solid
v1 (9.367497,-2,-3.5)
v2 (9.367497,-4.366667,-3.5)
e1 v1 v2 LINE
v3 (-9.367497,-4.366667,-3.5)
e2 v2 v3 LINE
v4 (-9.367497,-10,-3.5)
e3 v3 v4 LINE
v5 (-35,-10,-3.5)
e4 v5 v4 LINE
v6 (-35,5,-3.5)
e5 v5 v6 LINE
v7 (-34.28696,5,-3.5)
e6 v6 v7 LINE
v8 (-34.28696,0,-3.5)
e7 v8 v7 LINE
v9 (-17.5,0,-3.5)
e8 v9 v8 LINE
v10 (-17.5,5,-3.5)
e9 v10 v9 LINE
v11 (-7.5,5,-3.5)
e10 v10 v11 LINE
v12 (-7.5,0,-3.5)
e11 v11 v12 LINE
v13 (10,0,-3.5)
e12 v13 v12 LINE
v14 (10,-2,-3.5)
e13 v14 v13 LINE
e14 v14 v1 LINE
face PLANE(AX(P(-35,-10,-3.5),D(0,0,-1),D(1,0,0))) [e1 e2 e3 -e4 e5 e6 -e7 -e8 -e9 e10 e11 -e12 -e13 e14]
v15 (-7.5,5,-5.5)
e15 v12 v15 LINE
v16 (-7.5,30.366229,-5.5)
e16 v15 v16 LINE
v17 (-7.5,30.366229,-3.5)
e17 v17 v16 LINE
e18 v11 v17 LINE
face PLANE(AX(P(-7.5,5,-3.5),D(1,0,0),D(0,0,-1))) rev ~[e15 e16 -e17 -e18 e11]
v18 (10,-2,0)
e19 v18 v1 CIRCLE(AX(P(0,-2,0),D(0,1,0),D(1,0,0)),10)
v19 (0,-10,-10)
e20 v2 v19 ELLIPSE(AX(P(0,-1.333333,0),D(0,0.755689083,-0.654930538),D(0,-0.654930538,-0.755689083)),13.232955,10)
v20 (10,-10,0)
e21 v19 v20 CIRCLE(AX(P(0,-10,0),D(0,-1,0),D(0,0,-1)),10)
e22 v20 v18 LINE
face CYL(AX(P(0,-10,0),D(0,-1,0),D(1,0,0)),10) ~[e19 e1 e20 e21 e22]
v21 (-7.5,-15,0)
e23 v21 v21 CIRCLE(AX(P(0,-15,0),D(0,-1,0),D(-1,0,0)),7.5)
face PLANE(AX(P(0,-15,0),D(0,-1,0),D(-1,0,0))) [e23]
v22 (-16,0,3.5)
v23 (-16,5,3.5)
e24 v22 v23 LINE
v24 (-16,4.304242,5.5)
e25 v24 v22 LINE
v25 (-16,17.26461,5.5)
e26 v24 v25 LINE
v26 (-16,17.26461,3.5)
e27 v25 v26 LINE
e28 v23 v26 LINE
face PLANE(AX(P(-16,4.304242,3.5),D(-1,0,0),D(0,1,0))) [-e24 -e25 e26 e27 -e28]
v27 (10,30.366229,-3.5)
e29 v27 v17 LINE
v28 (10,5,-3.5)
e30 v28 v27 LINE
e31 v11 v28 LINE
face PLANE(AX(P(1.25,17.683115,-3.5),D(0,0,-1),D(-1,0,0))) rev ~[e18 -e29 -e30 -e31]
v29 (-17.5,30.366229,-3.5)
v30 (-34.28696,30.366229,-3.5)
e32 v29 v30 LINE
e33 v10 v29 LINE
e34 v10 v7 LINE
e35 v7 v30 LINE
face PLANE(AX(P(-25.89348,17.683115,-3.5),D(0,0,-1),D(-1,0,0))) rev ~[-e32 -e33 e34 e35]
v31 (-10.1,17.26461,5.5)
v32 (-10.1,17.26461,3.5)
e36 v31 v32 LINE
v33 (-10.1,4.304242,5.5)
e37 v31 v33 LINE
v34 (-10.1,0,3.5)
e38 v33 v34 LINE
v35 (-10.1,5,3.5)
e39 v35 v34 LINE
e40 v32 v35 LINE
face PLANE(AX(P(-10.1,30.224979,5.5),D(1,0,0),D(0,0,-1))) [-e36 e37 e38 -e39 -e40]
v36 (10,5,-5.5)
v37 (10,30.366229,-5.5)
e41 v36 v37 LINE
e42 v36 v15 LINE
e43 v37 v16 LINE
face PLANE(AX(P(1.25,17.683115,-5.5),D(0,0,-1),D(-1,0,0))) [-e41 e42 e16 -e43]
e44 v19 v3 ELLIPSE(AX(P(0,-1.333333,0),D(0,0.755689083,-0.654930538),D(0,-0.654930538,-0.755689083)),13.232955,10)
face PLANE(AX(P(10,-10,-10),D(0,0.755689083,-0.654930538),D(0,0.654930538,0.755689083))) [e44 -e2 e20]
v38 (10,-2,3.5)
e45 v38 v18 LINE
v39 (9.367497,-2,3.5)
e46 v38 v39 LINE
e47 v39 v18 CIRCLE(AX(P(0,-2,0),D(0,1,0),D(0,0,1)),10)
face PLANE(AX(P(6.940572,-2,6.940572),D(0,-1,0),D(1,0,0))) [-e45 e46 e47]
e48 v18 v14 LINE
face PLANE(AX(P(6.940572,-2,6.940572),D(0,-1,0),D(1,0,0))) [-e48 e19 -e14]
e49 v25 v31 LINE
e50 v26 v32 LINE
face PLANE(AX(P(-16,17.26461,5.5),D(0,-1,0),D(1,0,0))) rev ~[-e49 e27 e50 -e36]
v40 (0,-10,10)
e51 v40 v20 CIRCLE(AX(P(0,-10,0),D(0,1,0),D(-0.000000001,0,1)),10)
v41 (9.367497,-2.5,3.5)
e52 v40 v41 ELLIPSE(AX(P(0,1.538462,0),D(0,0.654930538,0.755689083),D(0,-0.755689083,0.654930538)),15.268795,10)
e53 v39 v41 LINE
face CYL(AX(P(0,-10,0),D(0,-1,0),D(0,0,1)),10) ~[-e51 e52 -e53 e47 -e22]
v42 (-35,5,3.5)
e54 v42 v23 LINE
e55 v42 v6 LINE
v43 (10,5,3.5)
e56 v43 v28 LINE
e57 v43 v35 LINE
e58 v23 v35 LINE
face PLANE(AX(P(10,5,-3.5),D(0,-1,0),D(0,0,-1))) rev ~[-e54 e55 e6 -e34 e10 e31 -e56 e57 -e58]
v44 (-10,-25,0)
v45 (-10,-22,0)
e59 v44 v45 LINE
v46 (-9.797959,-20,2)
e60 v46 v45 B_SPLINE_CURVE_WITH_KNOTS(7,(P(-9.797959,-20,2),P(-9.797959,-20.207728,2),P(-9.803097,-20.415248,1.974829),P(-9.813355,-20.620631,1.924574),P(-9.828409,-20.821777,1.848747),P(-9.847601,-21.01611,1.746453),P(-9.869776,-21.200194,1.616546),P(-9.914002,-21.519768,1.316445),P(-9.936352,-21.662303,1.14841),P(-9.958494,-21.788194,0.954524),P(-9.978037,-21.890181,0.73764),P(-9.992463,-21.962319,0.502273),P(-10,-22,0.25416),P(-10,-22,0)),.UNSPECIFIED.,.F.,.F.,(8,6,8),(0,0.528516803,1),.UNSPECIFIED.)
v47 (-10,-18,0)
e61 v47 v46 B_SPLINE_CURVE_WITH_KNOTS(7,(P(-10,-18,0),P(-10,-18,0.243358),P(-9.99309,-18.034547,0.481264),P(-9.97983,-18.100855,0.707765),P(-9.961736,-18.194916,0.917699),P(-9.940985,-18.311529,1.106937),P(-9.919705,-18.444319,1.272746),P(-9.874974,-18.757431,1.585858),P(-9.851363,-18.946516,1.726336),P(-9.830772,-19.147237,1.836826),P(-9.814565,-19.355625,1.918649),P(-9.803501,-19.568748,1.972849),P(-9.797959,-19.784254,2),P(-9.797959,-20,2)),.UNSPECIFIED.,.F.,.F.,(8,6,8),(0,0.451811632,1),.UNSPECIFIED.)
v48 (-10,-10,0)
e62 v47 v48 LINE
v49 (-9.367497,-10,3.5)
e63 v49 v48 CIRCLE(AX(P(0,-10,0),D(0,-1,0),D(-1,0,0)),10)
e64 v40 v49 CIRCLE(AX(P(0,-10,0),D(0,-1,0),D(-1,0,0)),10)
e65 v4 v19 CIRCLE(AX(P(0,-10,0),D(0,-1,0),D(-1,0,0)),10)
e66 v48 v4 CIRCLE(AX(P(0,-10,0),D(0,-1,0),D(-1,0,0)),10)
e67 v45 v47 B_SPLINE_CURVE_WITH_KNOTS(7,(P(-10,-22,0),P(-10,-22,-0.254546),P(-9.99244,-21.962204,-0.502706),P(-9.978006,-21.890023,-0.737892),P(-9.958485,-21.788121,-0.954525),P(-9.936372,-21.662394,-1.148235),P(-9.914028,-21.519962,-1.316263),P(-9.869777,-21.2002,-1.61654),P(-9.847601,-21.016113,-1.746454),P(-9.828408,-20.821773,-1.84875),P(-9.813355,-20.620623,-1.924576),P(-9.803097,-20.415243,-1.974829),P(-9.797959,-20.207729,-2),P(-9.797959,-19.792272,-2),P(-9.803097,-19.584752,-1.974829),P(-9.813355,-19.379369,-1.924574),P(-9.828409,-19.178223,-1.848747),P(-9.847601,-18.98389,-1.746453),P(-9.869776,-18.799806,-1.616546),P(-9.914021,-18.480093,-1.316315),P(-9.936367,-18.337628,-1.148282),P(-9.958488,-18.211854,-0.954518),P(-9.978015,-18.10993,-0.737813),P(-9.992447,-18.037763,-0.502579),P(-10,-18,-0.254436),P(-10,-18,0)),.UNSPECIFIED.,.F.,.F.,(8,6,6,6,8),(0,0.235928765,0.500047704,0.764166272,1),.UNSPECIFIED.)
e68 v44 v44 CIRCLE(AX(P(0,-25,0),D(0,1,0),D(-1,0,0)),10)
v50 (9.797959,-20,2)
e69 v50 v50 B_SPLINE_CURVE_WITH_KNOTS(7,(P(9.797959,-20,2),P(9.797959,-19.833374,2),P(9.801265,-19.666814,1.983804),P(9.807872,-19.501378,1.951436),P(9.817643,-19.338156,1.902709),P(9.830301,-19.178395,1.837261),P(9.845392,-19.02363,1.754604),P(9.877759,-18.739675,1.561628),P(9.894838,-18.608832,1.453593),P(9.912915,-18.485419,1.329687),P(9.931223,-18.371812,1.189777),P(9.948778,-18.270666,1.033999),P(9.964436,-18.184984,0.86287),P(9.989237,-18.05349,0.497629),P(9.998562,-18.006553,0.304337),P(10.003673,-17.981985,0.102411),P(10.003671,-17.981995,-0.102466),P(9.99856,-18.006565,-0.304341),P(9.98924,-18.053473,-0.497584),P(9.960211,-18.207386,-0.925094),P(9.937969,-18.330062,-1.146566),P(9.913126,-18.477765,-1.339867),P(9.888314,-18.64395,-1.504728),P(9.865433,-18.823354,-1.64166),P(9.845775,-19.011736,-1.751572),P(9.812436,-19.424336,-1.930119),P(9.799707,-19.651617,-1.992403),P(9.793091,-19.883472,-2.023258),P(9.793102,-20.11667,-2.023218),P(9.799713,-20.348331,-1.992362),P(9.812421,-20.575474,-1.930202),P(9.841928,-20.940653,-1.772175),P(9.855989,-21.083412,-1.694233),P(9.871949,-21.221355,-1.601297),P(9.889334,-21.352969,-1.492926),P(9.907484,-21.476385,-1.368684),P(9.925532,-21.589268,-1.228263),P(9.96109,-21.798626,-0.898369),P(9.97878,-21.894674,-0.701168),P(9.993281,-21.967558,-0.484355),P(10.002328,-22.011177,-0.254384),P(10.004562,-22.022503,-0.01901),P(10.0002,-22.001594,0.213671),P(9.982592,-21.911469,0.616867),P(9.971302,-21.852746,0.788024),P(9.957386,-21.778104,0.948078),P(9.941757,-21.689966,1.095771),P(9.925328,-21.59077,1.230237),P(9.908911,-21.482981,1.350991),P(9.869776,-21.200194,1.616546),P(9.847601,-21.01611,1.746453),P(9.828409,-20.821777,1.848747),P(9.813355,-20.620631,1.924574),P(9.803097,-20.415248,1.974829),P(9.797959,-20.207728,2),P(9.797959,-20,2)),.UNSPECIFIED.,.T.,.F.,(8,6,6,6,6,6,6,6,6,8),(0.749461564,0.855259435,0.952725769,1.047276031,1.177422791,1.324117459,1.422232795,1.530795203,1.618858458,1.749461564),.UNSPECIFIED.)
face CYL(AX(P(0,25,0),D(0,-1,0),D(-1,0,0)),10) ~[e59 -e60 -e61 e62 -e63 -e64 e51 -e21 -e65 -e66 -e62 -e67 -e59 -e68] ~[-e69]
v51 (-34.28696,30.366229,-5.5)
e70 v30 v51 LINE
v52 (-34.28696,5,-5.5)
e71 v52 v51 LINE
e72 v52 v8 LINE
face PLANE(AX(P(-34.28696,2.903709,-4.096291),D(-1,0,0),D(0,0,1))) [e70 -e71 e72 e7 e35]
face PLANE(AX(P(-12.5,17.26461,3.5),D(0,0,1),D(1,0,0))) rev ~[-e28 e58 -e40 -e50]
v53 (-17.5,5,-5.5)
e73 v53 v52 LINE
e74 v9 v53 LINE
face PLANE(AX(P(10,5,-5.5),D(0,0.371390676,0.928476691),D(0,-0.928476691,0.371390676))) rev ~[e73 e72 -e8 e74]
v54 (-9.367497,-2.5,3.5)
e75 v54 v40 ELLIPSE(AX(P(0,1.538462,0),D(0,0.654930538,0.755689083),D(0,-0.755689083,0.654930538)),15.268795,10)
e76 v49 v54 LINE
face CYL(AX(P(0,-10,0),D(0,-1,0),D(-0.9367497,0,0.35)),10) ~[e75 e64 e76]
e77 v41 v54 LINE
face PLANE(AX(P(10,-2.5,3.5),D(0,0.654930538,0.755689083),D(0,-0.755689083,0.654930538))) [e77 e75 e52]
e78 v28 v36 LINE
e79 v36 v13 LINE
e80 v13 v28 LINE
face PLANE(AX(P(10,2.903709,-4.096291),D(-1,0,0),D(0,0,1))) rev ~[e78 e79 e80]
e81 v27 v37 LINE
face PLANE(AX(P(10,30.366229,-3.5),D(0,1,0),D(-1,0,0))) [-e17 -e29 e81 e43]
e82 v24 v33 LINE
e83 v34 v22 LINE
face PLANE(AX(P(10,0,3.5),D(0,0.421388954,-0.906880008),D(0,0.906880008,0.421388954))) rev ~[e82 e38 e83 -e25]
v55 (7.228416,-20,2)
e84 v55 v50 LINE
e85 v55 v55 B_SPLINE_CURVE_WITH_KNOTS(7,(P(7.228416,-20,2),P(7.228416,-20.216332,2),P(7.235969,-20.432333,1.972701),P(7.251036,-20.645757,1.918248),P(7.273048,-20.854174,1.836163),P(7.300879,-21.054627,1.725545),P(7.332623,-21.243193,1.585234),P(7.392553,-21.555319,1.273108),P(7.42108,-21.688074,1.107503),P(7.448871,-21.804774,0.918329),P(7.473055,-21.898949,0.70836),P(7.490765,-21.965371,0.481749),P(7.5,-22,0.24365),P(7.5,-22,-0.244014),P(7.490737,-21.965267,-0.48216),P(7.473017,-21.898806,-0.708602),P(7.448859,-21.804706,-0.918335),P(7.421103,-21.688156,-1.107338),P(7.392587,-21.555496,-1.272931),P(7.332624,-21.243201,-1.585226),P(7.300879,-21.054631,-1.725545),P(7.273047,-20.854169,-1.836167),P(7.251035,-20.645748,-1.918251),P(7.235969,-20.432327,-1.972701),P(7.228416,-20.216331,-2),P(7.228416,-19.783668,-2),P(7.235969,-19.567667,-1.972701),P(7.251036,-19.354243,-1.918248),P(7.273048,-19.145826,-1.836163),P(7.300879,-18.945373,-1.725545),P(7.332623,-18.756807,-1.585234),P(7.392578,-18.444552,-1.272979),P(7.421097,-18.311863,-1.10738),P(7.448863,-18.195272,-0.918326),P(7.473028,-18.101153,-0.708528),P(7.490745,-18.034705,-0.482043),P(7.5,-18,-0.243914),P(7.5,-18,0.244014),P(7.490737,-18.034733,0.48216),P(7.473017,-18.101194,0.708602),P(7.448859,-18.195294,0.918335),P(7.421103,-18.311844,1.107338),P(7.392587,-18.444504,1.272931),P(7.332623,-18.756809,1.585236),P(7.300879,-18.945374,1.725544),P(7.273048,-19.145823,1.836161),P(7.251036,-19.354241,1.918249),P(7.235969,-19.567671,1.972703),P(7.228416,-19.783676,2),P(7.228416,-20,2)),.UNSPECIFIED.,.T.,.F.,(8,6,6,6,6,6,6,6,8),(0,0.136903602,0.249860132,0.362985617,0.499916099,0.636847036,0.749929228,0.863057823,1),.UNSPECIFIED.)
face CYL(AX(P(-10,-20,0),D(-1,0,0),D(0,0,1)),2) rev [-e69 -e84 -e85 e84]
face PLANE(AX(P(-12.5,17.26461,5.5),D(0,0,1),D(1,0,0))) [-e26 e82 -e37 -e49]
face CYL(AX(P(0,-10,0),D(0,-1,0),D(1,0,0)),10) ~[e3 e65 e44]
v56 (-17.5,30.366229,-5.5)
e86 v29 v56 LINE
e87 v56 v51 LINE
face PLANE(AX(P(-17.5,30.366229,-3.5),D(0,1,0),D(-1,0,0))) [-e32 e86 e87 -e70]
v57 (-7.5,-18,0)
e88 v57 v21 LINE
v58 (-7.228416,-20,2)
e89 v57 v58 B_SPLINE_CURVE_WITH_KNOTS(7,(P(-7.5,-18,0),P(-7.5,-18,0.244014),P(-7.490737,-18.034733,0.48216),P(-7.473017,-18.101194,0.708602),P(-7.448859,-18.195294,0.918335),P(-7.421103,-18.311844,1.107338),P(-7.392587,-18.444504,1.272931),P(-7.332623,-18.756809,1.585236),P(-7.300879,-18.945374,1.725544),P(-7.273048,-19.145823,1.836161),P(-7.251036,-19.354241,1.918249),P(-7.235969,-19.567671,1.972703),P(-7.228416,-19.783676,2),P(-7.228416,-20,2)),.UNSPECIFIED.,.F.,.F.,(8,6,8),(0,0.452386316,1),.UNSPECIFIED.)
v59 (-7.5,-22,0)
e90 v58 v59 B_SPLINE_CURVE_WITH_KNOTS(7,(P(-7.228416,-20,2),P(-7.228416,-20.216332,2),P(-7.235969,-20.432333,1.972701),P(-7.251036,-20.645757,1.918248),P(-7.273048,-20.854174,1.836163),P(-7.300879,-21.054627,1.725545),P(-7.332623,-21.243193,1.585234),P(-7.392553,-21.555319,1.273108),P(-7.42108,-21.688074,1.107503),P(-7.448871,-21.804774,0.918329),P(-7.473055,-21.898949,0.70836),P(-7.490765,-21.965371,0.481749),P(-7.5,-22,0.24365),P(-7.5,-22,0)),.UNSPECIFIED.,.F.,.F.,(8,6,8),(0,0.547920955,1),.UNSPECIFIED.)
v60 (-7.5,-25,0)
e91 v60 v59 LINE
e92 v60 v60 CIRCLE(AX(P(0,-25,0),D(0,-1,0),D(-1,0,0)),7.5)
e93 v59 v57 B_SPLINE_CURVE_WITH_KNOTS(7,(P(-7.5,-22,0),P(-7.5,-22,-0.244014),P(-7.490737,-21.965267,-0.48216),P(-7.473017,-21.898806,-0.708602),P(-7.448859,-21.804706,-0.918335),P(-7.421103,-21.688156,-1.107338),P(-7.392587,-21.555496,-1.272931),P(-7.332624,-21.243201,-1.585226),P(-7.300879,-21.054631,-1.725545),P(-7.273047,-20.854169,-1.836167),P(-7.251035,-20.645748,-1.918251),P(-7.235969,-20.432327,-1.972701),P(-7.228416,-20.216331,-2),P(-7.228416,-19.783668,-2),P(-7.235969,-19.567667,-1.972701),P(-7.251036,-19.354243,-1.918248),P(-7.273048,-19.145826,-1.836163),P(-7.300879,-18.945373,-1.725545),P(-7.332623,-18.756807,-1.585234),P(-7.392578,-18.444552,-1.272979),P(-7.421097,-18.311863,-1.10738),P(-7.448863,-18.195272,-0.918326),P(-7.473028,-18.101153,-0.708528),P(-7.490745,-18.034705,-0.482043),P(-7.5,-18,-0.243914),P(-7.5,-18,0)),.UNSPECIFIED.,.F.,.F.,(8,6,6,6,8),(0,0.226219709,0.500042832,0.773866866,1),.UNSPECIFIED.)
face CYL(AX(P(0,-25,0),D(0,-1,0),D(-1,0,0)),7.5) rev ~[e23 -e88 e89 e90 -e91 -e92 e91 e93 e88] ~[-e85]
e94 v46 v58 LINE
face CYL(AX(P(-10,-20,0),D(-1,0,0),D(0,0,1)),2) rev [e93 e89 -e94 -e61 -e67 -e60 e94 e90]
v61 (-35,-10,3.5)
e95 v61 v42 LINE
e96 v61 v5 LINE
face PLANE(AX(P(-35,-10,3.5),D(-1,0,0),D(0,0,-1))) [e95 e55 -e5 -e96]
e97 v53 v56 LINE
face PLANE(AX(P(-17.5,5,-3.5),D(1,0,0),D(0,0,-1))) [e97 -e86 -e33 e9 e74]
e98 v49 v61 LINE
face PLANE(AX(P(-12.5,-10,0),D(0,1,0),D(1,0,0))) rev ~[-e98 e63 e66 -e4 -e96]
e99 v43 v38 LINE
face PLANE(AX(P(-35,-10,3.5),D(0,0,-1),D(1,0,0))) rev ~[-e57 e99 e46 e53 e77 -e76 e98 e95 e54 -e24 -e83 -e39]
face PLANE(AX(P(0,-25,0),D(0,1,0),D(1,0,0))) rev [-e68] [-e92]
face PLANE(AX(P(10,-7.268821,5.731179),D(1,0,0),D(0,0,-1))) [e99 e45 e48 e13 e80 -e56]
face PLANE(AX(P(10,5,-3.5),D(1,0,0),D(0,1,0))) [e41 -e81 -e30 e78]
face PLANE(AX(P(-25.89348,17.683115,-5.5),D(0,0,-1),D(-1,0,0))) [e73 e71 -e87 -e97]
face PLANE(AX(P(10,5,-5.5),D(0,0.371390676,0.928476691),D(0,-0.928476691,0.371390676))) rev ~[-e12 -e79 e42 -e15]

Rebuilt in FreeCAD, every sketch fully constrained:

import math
import FreeCAD as App
import Part
import Sketcher
from FreeCAD import Vector
Q = App.Units.Quantity


def edges_at(feature, points):
    """Names of the edges that pass closest to the given points."""
    edges = feature.Shape.Edges
    near = lambda p: min(range(len(edges)), key=lambda i: edges[i].distToShape(Part.Vertex(*p))[0])
    return sorted({f"Edge{near(p) + 1}" for p in points})


def add_polygon(sketch, points):
    """Adds a closed chain of lines whose ends are joined by coincident constraints."""
    first, n = sketch.GeometryCount, len(points)
    for a, b in zip(points, points[1:] + points[:1]):
        sketch.addGeometry(Part.LineSegment(App.Vector(*a, 0), App.Vector(*b, 0)), False)
    for i in range(n):
        sketch.addConstraint(Sketcher.Constraint("Coincident", first + i, 2, first + (i + 1) % n, 1))

doc = App.newDocument("Part")
body = doc.addObject("PartDesign::Body", "Body")

# Sketch on XY plane
sketch1 = body.newObject("Sketcher::SketchObject", "Sketch")
sketch1.AttachmentSupport = (doc.getObject("XY_Plane"), [""])
sketch1.MapMode = "FlatFace"
add_polygon(sketch1, [(50, 25), (0, 25), (0, 22.5), (45, 22.5), (45, -22.5), (0, -22.5), (0, -25), (50, -25)])  # lines 0-7
sketch1.addConstraint([
    Sketcher.Constraint("Horizontal", 0),
    Sketcher.Constraint("Vertical", 1),
    Sketcher.Constraint("Horizontal", 2),
    Sketcher.Constraint("Vertical", 3),
    Sketcher.Constraint("Horizontal", 4),
    Sketcher.Constraint("Vertical", 5),
    Sketcher.Constraint("Horizontal", 6),
    Sketcher.Constraint("Vertical", 7),
    Sketcher.Constraint("Symmetric", 1, 2, 4, 2, -1, 1),
    Sketcher.Constraint("Symmetric", 0, 2, 5, 2, -1),
    Sketcher.Constraint("Equal", 4, 3),
    Sketcher.Constraint("Equal", 6, 7),
    Sketcher.Constraint("DistanceX", 0, 2, 0, 1, Q("50 mm")),
    Sketcher.Constraint("DistanceX", 2, 1, 2, 2, Q("45 mm")),
])
revolution = body.newObject("PartDesign::Revolution", "Revolution")
revolution.Profile = sketch1
revolution.ReferenceAxis = (sketch1, ["V_Axis"])
revolution.Angle = 360

# Sketch on XZ plane
sketch2 = body.newObject("Sketcher::SketchObject", "Sketch001")
sketch2.AttachmentSupport = (doc.getObject("XZ_Plane"), [""])
sketch2.MapMode = "FlatFace"
sketch2.AttachmentOffset = App.Placement(Vector(0, 0, -25), App.Rotation())
sketch2.addGeometry(Part.Circle(Vector(0, 0, 0), Vector(0, 0, 1), 10), False)
sketch2.addConstraint([
    Sketcher.Constraint("Coincident", 0, 3, -1, 1),
    Sketcher.Constraint("Diameter", 0, Q("20 mm")),
])
pad1 = body.newObject("PartDesign::Pad", "Pad")
pad1.Profile = sketch2
pad1.Length = 30
pad1.Reversed = True

# Sketch on XZ plane
sketch3 = body.newObject("Sketcher::SketchObject", "Sketch002")
sketch3.AttachmentSupport = (doc.getObject("XZ_Plane"), [""])
sketch3.MapMode = "FlatFace"
sketch3.AttachmentOffset = App.Placement(Vector(0, 0, -45), App.Rotation())
sketch3.addGeometry([
    Part.Circle(Vector(0, 0, 0), Vector(0, 0, 1), 10),
    Part.Circle(Vector(0, 0, 0), Vector(0, 0, 1), 7.5),
], False)
sketch3.addConstraint([
    Sketcher.Constraint("Coincident", 0, 3, -1, 1),
    Sketcher.Constraint("Coincident", 1, 3, -1, 1),
    Sketcher.Constraint("Diameter", 0, Q("20 mm")),
    Sketcher.Constraint("Diameter", 1, Q("15 mm")),
])
pocket1 = body.newObject("PartDesign::Pocket", "Pocket")
pocket1.Profile = sketch3
pocket1.Length = 10

# Sketch on YZ plane
sketch4 = body.newObject("Sketcher::SketchObject", "Sketch003")
sketch4.AttachmentSupport = (doc.getObject("YZ_Plane"), [""])
sketch4.MapMode = "FlatFace"
sketch4.addGeometry(Part.Circle(Vector(50, 0, 0), Vector(0, 0, 1), 2), False)
sketch4.addConstraint([
    Sketcher.Constraint("PointOnObject", 0, 3, -1),
    Sketcher.Constraint("Diameter", 0, Q("4 mm")),
    Sketcher.Constraint("DistanceX", -1, 1, 0, 3, Q("50 mm")),
])
pocket2 = body.newObject("PartDesign::Pocket", "Pocket001")
pocket2.Profile = sketch4
pocket2.Type = "ThroughAll"
pocket2.Midplane = True
doc.recompute()

fillet = body.newObject("PartDesign::Fillet", "Fillet")
fillet.Base = (pocket2, edges_at(pocket2, [(-50, 25, 0)]))
fillet.Radius = 10

# Sketch on XZ plane
sketch5 = body.newObject("Sketcher::SketchObject", "Sketch004")
sketch5.AttachmentSupport = (doc.getObject("XZ_Plane"), [""])
sketch5.MapMode = "FlatFace"
sketch5.AttachmentOffset = App.Placement(Vector(0, 0, 22.5), App.Rotation())
sketch5.addGeometry(Part.Circle(Vector(0, 0, 0), Vector(0, 0, 1), 10), False)
sketch5.addConstraint([
    Sketcher.Constraint("Coincident", 0, 3, -1, 1),
    Sketcher.Constraint("Diameter", 0, Q("20 mm")),
])
pad2 = body.newObject("PartDesign::Pad", "Pad001")
pad2.Profile = sketch5
pad2.Length = 67.5
pad2.Reversed = True

# Sketch on XZ plane
sketch6 = body.newObject("Sketcher::SketchObject", "Sketch005")
sketch6.AttachmentSupport = (doc.getObject("XZ_Plane"), [""])
sketch6.MapMode = "FlatFace"
sketch6.AttachmentOffset = App.Placement(Vector(0, 0, -55), App.Rotation())
sketch6.addGeometry([
    Part.Circle(Vector(0, 0, 0), Vector(0, 0, 1), 50),
    Part.Circle(Vector(0, 0, 0), Vector(0, 0, 1), 10),
], False)
sketch6.addConstraint([
    Sketcher.Constraint("Coincident", 0, 3, -1, 1),
    Sketcher.Constraint("Coincident", 1, 3, -1, 1),
    Sketcher.Constraint("Diameter", 0, Q("100 mm")),
    Sketcher.Constraint("Diameter", 1, Q("20 mm")),
])
pocket3 = body.newObject("PartDesign::Pocket", "Pocket002")
pocket3.Profile = sketch6
pocket3.Type = "ThroughAll"
pocket3.Reversed = True

# Sketch on XZ plane
sketch7 = body.newObject("Sketcher::SketchObject", "Sketch006")
sketch7.AttachmentSupport = (doc.getObject("XZ_Plane"), [""])
sketch7.MapMode = "FlatFace"
sketch7.AttachmentOffset = App.Placement(Vector(0, 0, 25), App.Rotation())
sketch7.addGeometry(Part.Circle(Vector(0, 0, 0), Vector(0, 0, 1), 7.5), False)
sketch7.addConstraint([
    Sketcher.Constraint("Coincident", 0, 3, -1, 1),
    Sketcher.Constraint("Diameter", 0, Q("15 mm")),
])
pocket4 = body.newObject("PartDesign::Pocket", "Pocket003")
pocket4.Profile = sketch7
pocket4.Length = 10

# Sketch on YZ plane
sketch8 = body.newObject("Sketcher::SketchObject", "Sketch007")
sketch8.AttachmentSupport = (doc.getObject("YZ_Plane"), [""])
sketch8.MapMode = "FlatFace"
sketch8.addGeometry(Part.Circle(Vector(-20, 0, 0), Vector(0, 0, 1), 2), False)
sketch8.addConstraint([
    Sketcher.Constraint("PointOnObject", 0, 3, -1),
    Sketcher.Constraint("Diameter", 0, Q("4 mm")),
    Sketcher.Constraint("DistanceX", 0, 3, -1, 1, Q("20 mm")),
])
pocket5 = body.newObject("PartDesign::Pocket", "Pocket004")
pocket5.Profile = sketch8
pocket5.Type = "ThroughAll"
pocket5.Midplane = True

# Sketch on YZ plane
sketch9 = body.newObject("Sketcher::SketchObject", "Sketch008")
sketch9.AttachmentSupport = (doc.getObject("YZ_Plane"), [""])
sketch9.MapMode = "FlatFace"
add_polygon(sketch9, [(55, 11.038428), (-10, 11.038428), (-10, -11.990016), (55, -11.990016)])  # lines 0-3
sketch9.addConstraint([
    Sketcher.Constraint("Horizontal", 0),
    Sketcher.Constraint("Vertical", 1),
    Sketcher.Constraint("Horizontal", 2),
    Sketcher.Constraint("Vertical", 3),
    Sketcher.Constraint("DistanceX", 0, 2, 0, 1, Q("65 mm")),
    Sketcher.Constraint("DistanceX", 0, 2, -1, 1, Q("10 mm")),
    Sketcher.Constraint("DistanceY", 1, 2, 1, 1, Q("23.028444 mm")),
    Sketcher.Constraint("DistanceY", -1, 1, 0, 2, Q("11.038428 mm")),
])
pocket6 = body.newObject("PartDesign::Pocket", "Pocket005")
pocket6.Profile = sketch9
pocket6.Type = "ThroughAll"
pocket6.Midplane = True

# Sketch on XZ plane
sketch10 = body.newObject("Sketcher::SketchObject", "Sketch009")
sketch10.AttachmentSupport = (doc.getObject("XZ_Plane"), [""])
sketch10.MapMode = "FlatFace"
sketch10.AttachmentOffset = App.Placement(Vector(0, 0, 10), App.Rotation())
add_polygon(sketch10, [(-35, -3.5), (-35, 3.5), (10, 3.5), (10, -3.5)])  # lines 0-3
sketch10.addConstraint([
    Sketcher.Constraint("Vertical", 0),
    Sketcher.Constraint("Horizontal", 1),
    Sketcher.Constraint("Vertical", 2),
    Sketcher.Constraint("Horizontal", 3),
    Sketcher.Constraint("DistanceX", 1, 1, 1, 2, Q("45 mm")),
    Sketcher.Constraint("DistanceY", 0, 1, 0, 2, Q("7 mm")),
    Sketcher.Constraint("DistanceX", 0, 2, -1, 1, Q("35 mm")),
    Sketcher.Constraint("DistanceY", -1, 1, 0, 2, Q("3.5 mm")),
])
pad3 = body.newObject("PartDesign::Pad", "Pad002")
pad3.Profile = sketch10
pad3.Length = 15
pad3.Reversed = True

# Sketch on XY plane
sketch11 = body.newObject("Sketcher::SketchObject", "Sketch010")
sketch11.AttachmentSupport = (doc.getObject("XY_Plane"), [""])
sketch11.MapMode = "FlatFace"
sketch11.AttachmentOffset = App.Placement(Vector(0, 0, 3.5), App.Rotation())
add_polygon(sketch11, [(-16, 30.224979), (-16, 4.304242), (-9, 4.304242), (-9, 30.224979)])  # lines 0-3
sketch11.addConstraint([
    Sketcher.Constraint("Vertical", 0),
    Sketcher.Constraint("Horizontal", 1),
    Sketcher.Constraint("Vertical", 2),
    Sketcher.Constraint("Horizontal", 3),
    Sketcher.Constraint("DistanceX", 1, 1, 1, 2, Q("7 mm")),
    Sketcher.Constraint("DistanceX", 0, 2, -1, 1, Q("16 mm")),
    Sketcher.Constraint("DistanceY", 0, 2, 0, 1, Q("25.920737 mm")),
    Sketcher.Constraint("DistanceY", -1, 1, 0, 2, Q("4.304242 mm")),
])
pad4 = body.newObject("PartDesign::Pad", "Pad003")
pad4.Profile = sketch11
pad4.Length = 2
body2 = doc.addObject("PartDesign::Body", "Body001")

# Sketch on XY plane
sketch12 = body2.newObject("Sketcher::SketchObject", "Sketch011")
sketch12.AttachmentSupport = (doc.getObject("XY_Plane001"), [""])
sketch12.MapMode = "FlatFace"
sketch12.AttachmentOffset = App.Placement(Vector(0, 0, -3.5), App.Rotation())
add_polygon(sketch12, [(10, 30.366229), (10, 5), (-7.5, 5), (-7.5, 30.366229)])  # lines 0-3
sketch12.addConstraint([
    Sketcher.Constraint("Vertical", 0),
    Sketcher.Constraint("Horizontal", 1),
    Sketcher.Constraint("Vertical", 2),
    Sketcher.Constraint("Horizontal", 3),
    Sketcher.Constraint("DistanceX", 1, 2, 1, 1, Q("17.5 mm")),
    Sketcher.Constraint("DistanceX", -1, 1, 0, 2, Q("10 mm")),
    Sketcher.Constraint("DistanceY", -1, 1, 0, 2, Q("5 mm")),
    Sketcher.Constraint("DistanceY", 0, 2, 0, 1, Q("25.366229 mm")),
])
pad5 = body2.newObject("PartDesign::Pad", "Pad004")
pad5.Profile = sketch12
pad5.Length = 2
pad5.Reversed = True
body3 = doc.addObject("PartDesign::Body", "Body002")

# Sketch on XY plane
sketch13 = body3.newObject("Sketcher::SketchObject", "Sketch012")
sketch13.AttachmentSupport = (doc.getObject("XY_Plane002"), [""])
sketch13.MapMode = "FlatFace"
sketch13.AttachmentOffset = App.Placement(Vector(0, 0, -3.5), App.Rotation())
add_polygon(sketch13, [(-17.5, 30.366229), (-17.5, 5), (-34.28696, 5), (-34.28696, 30.366229)])  # lines 0-3
sketch13.addConstraint([
    Sketcher.Constraint("Vertical", 0),
    Sketcher.Constraint("Horizontal", 1),
    Sketcher.Constraint("Vertical", 2),
    Sketcher.Constraint("Horizontal", 3),
    Sketcher.Constraint("DistanceY", -1, 1, 0, 2, Q("5 mm")),
    Sketcher.Constraint("DistanceX", 0, 2, -1, 1, Q("17.5 mm")),
    Sketcher.Constraint("DistanceX", 1, 2, 1, 1, Q("16.78696 mm")),
    Sketcher.Constraint("DistanceY", 0, 2, 0, 1, Q("25.366229 mm")),
])
pad6 = body3.newObject("PartDesign::Pad", "Pad005")
pad6.Profile = sketch13
pad6.Length = 2
pad6.Reversed = True
body.AllowCompound = True
doc.recompute()

boolean = body.newObject("PartDesign::Boolean", "Boolean")
boolean.Type = "Fuse"
boolean.addObjects([body2])
doc.recompute()

boolean2 = body.newObject("PartDesign::Boolean", "Boolean001")
boolean2.Type = "Fuse"
boolean2.addObjects([body3])

# Sketch on YZ plane
sketch14 = body.newObject("Sketcher::SketchObject", "Sketch013")
sketch14.AttachmentSupport = (doc.getObject("YZ_Plane"), [""])
sketch14.MapMode = "FlatFace"
sketch14.AttachmentOffset = App.Placement(Vector(0, 0, 10), App.Rotation())
add_polygon(sketch14, [(5, -5.5), (0, -3.5), (5, -3.5)])  # lines 0-2
add_polygon(sketch14, [(0, 3.5), (4.304242, 5.5), (4.304242, 3.5)])  # lines 3-5
sketch14.addConstraint([
    Sketcher.Constraint("Horizontal", 1),
    Sketcher.Constraint("Vertical", 2),
    Sketcher.Constraint("Vertical", 4),
    Sketcher.Constraint("Horizontal", 5),
    Sketcher.Constraint("Symmetric", 0, 2, 5, 2, -1, 1),
    Sketcher.Constraint("PointOnObject", 0, 2, -2),
    Sketcher.Constraint("Equal", 2, 4),
    Sketcher.Constraint("DistanceX", 1, 1, 1, 2, Q("5 mm")),
    Sketcher.Constraint("DistanceY", 2, 2, 2, 1, Q("2 mm")),
    Sketcher.Constraint("DistanceY", 1, 2, 3, 2, Q("9 mm")),
    Sketcher.Constraint("DistanceX", 5, 2, 5, 1, Q("4.304242 mm")),
])
pad7 = body.newObject("PartDesign::Pad", "Pad006")
pad7.Profile = sketch14
pad7.Length = 44.28696
pad7.Reversed = True

# Sketch on XZ plane
sketch15 = body.newObject("Sketcher::SketchObject", "Sketch014")
sketch15.AttachmentSupport = (doc.getObject("XZ_Plane"), [""])
sketch15.MapMode = "FlatFace"
sketch15.AttachmentOffset = App.Placement(Vector(0, 0, -5), App.Rotation())
add_polygon(sketch15, [(-17.5, -5.5), (-17.5, -3.5), (-7.5, -3.5), (-7.5, -5.5)])  # lines 0-3
add_polygon(sketch15, [(-34.28696, 3.5), (-34.28696, 5.5), (-16, 5.5), (-16, 3.5)])  # lines 4-7
add_polygon(sketch15, [(-9, 3.5), (-9, 5.5), (10, 5.5), (10, 3.5)])  # lines 8-11
sketch15.addConstraint([
    Sketcher.Constraint("Vertical", 0),
    Sketcher.Constraint("Horizontal", 1),
    Sketcher.Constraint("Vertical", 2),
    Sketcher.Constraint("Horizontal", 3),
    Sketcher.Constraint("Vertical", 4),
    Sketcher.Constraint("Horizontal", 5),
    Sketcher.Constraint("Vertical", 6),
    Sketcher.Constraint("Horizontal", 7),
    Sketcher.Constraint("Vertical", 8),
    Sketcher.Constraint("Horizontal", 9),
    Sketcher.Constraint("Vertical", 10),
    Sketcher.Constraint("Horizontal", 11),
    Sketcher.Constraint("Horizontal", 5, 2, 8, 2),
    Sketcher.Constraint("Horizontal", 7, 2, 10, 2),
    Sketcher.Constraint("Equal", 2, 4),
    Sketcher.Constraint("DistanceX", 1, 1, 1, 2, Q("10 mm")),
    Sketcher.Constraint("DistanceX", 9, 1, 9, 2, Q("19 mm")),
    Sketcher.Constraint("DistanceY", 0, 1, 0, 2, Q("2 mm")),
    Sketcher.Constraint("DistanceX", 5, 2, -1, 1, Q("16 mm")),
    Sketcher.Constraint("DistanceX", 8, 2, -1, 1, Q("9 mm")),
    Sketcher.Constraint("DistanceY", 0, 2, 4, 2, Q("9 mm")),
    Sketcher.Constraint("DistanceX", 0, 2, -1, 1, Q("17.5 mm")),
    Sketcher.Constraint("DistanceY", 0, 2, -1, 1, Q("3.5 mm")),
    Sketcher.Constraint("DistanceX", 5, 1, 5, 2, Q("18.28696 mm")),
])
pocket7 = body.newObject("PartDesign::Pocket", "Pocket006")
pocket7.Profile = sketch15
pocket7.Length = 8
pocket7.Reversed = True

# Sketch on YZ plane
sketch16 = body.newObject("Sketcher::SketchObject", "Sketch015")
sketch16.AttachmentSupport = (doc.getObject("YZ_Plane"), [""])
sketch16.MapMode = "FlatFace"
sketch16.AttachmentOffset = App.Placement(Vector(0, 0, 10), App.Rotation())
add_polygon(sketch16, [(-10, 10), (-10, 3.5), (-2.5, 3.5)])  # lines 0-2
add_polygon(sketch16, [(-10, -10), (-4.366667, -3.5), (-10, -3.5)])  # lines 3-5
sketch16.addConstraint([
    Sketcher.Constraint("Vertical", 0),
    Sketcher.Constraint("Horizontal", 1),
    Sketcher.Constraint("Horizontal", 4),
    Sketcher.Constraint("Vertical", 5),
    Sketcher.Constraint("Symmetric", 0, 2, 4, 2, -1),
    Sketcher.Constraint("Perpendicular", 2, 3),
    Sketcher.Constraint("Equal", 0, 5),
    Sketcher.Constraint("DistanceX", 1, 1, 1, 2, Q("7.5 mm")),
    Sketcher.Constraint("DistanceY", 0, 2, 0, 1, Q("6.5 mm")),
    Sketcher.Constraint("DistanceX", 0, 2, -1, 1, Q("10 mm")),
    Sketcher.Constraint("DistanceY", -1, 1, 2, 2, Q("10 mm")),
])
pad8 = body.newObject("PartDesign::Pad", "Pad007")
pad8.Profile = sketch16
pad8.Length = 19.367497
pad8.Reversed = True

# Sketch on XZ plane
sketch17 = body.newObject("Sketcher::SketchObject", "Sketch016")
sketch17.AttachmentSupport = (doc.getObject("XZ_Plane"), [""])
sketch17.MapMode = "FlatFace"
sketch17.AttachmentOffset = App.Placement(Vector(0, 0, 10), App.Rotation())
sketch17.addGeometry([
    Part.ArcOfCircle(Part.Circle(Vector(0, 0, 0), Vector(0, 0, 1), 10), math.radians(0), math.radians(90)),  # 0
    Part.ArcOfCircle(Part.Circle(Vector(0, 0, 0), Vector(0, 0, 1), 10), math.radians(-159.512685), math.radians(0)),  # 1
    Part.LineSegment(Vector(-9.367497, -3.5, 0), Vector(-13.70219, -3.5, 0)),  # 2
    Part.ArcOfCircle(Part.Circle(Vector(0, 0, 0), Vector(0, 0, 1), 14.142136), math.radians(-165.671122), math.radians(45)),  # 3
    Part.ArcOfCircle(Part.Circle(Vector(0, 0, 0), Vector(0, 0, 1), 14.142136), math.radians(45), math.radians(165.671122)),  # 4
    Part.LineSegment(Vector(-13.70219, 3.5, 0), Vector(-9.367497, 3.5, 0)),  # 5
    Part.ArcOfCircle(Part.Circle(Vector(0, 0, 0), Vector(0, 0, 1), 10), math.radians(90), math.radians(159.512685)),  # 6
], False)
sketch17.addConstraint([
    Sketcher.Constraint("Tangent", 0, 1, 1, 2),
    Sketcher.Constraint("Coincident", 1, 1, 2, 1),
    Sketcher.Constraint("Coincident", 2, 2, 3, 1),
    Sketcher.Constraint("Tangent", 3, 2, 4, 1),
    Sketcher.Constraint("Coincident", 4, 2, 5, 1),
    Sketcher.Constraint("Coincident", 5, 2, 6, 2),
    Sketcher.Constraint("Tangent", 6, 1, 0, 2),
    Sketcher.Constraint("Horizontal", 2),
    Sketcher.Constraint("Horizontal", 5),
    Sketcher.Constraint("Coincident", 0, 3, -1, 1),
    Sketcher.Constraint("Coincident", 3, 3, -1, 1),
    Sketcher.Constraint("Equal", 0, 1),
    Sketcher.Constraint("Equal", 3, 4),
    Sketcher.Constraint("Equal", 1, 6),
    Sketcher.Constraint("PointOnObject", 0, 1, -1),
    Sketcher.Constraint("PointOnObject", 6, 1, -2),
    Sketcher.Constraint("Horizontal", 3, 2, 6, 1),
    Sketcher.Constraint("Vertical", 0, 1, 3, 2),
    Sketcher.Constraint("Vertical", 2, 2, 4, 2),
    Sketcher.Constraint("Radius", 0, Q("10 mm")),
    Sketcher.Constraint("DistanceY", 2, 2, 4, 2, Q("7 mm")),
])
pocket8 = body.newObject("PartDesign::Pocket", "Pocket007")
pocket8.Profile = sketch17
pocket8.Length = 8

# Sketch on XZ plane
sketch18 = body.newObject("Sketcher::SketchObject", "Sketch017")
sketch18.AttachmentSupport = (doc.getObject("XZ_Plane"), [""])
sketch18.MapMode = "FlatFace"
sketch18.AttachmentOffset = App.Placement(Vector(0, 0, -30.224979), App.Rotation())
add_polygon(sketch18, [(-10.1, 3.5), (-10.1, 5.5), (-9, 5.5), (-9, 3.5)])  # lines 0-3
sketch18.addConstraint([
    Sketcher.Constraint("Vertical", 0),
    Sketcher.Constraint("Horizontal", 1),
    Sketcher.Constraint("Vertical", 2),
    Sketcher.Constraint("Horizontal", 3),
    Sketcher.Constraint("DistanceY", 0, 1, 0, 2, Q("2 mm")),
    Sketcher.Constraint("DistanceX", 1, 1, 1, 2, Q("1.1 mm")),
    Sketcher.Constraint("DistanceX", 1, 2, -1, 1, Q("9 mm")),
    Sketcher.Constraint("DistanceY", -1, 1, 0, 2, Q("5.5 mm")),
])
pocket9 = body.newObject("PartDesign::Pocket", "Pocket008")
pocket9.Profile = sketch18
pocket9.Length = 32
pocket9.Reversed = True

# Sketch on XY plane
sketch19 = body.newObject("Sketcher::SketchObject", "Sketch018")
sketch19.AttachmentSupport = (doc.getObject("XY_Plane"), [""])
sketch19.MapMode = "FlatFace"
sketch19.AttachmentOffset = App.Placement(Vector(0, 0, 5.5), App.Rotation())
add_polygon(sketch19, [(-16, 30.224979), (-16, 17.26461), (-10.1, 17.26461), (-10.1, 30.224979)])  # lines 0-3
sketch19.addConstraint([
    Sketcher.Constraint("Vertical", 0),
    Sketcher.Constraint("Horizontal", 1),
    Sketcher.Constraint("Vertical", 2),
    Sketcher.Constraint("Horizontal", 3),
    Sketcher.Constraint("DistanceX", 1, 1, 1, 2, Q("5.9 mm")),
    Sketcher.Constraint("DistanceX", 0, 2, -1, 1, Q("16 mm")),
    Sketcher.Constraint("DistanceY", 0, 2, 0, 1, Q("12.960368 mm")),
    Sketcher.Constraint("DistanceY", -1, 1, 0, 2, Q("17.26461 mm")),
])
pocket10 = body.newObject("PartDesign::Pocket", "Pocket009")
pocket10.Profile = sketch19
pocket10.Length = 10

doc.recompute()
